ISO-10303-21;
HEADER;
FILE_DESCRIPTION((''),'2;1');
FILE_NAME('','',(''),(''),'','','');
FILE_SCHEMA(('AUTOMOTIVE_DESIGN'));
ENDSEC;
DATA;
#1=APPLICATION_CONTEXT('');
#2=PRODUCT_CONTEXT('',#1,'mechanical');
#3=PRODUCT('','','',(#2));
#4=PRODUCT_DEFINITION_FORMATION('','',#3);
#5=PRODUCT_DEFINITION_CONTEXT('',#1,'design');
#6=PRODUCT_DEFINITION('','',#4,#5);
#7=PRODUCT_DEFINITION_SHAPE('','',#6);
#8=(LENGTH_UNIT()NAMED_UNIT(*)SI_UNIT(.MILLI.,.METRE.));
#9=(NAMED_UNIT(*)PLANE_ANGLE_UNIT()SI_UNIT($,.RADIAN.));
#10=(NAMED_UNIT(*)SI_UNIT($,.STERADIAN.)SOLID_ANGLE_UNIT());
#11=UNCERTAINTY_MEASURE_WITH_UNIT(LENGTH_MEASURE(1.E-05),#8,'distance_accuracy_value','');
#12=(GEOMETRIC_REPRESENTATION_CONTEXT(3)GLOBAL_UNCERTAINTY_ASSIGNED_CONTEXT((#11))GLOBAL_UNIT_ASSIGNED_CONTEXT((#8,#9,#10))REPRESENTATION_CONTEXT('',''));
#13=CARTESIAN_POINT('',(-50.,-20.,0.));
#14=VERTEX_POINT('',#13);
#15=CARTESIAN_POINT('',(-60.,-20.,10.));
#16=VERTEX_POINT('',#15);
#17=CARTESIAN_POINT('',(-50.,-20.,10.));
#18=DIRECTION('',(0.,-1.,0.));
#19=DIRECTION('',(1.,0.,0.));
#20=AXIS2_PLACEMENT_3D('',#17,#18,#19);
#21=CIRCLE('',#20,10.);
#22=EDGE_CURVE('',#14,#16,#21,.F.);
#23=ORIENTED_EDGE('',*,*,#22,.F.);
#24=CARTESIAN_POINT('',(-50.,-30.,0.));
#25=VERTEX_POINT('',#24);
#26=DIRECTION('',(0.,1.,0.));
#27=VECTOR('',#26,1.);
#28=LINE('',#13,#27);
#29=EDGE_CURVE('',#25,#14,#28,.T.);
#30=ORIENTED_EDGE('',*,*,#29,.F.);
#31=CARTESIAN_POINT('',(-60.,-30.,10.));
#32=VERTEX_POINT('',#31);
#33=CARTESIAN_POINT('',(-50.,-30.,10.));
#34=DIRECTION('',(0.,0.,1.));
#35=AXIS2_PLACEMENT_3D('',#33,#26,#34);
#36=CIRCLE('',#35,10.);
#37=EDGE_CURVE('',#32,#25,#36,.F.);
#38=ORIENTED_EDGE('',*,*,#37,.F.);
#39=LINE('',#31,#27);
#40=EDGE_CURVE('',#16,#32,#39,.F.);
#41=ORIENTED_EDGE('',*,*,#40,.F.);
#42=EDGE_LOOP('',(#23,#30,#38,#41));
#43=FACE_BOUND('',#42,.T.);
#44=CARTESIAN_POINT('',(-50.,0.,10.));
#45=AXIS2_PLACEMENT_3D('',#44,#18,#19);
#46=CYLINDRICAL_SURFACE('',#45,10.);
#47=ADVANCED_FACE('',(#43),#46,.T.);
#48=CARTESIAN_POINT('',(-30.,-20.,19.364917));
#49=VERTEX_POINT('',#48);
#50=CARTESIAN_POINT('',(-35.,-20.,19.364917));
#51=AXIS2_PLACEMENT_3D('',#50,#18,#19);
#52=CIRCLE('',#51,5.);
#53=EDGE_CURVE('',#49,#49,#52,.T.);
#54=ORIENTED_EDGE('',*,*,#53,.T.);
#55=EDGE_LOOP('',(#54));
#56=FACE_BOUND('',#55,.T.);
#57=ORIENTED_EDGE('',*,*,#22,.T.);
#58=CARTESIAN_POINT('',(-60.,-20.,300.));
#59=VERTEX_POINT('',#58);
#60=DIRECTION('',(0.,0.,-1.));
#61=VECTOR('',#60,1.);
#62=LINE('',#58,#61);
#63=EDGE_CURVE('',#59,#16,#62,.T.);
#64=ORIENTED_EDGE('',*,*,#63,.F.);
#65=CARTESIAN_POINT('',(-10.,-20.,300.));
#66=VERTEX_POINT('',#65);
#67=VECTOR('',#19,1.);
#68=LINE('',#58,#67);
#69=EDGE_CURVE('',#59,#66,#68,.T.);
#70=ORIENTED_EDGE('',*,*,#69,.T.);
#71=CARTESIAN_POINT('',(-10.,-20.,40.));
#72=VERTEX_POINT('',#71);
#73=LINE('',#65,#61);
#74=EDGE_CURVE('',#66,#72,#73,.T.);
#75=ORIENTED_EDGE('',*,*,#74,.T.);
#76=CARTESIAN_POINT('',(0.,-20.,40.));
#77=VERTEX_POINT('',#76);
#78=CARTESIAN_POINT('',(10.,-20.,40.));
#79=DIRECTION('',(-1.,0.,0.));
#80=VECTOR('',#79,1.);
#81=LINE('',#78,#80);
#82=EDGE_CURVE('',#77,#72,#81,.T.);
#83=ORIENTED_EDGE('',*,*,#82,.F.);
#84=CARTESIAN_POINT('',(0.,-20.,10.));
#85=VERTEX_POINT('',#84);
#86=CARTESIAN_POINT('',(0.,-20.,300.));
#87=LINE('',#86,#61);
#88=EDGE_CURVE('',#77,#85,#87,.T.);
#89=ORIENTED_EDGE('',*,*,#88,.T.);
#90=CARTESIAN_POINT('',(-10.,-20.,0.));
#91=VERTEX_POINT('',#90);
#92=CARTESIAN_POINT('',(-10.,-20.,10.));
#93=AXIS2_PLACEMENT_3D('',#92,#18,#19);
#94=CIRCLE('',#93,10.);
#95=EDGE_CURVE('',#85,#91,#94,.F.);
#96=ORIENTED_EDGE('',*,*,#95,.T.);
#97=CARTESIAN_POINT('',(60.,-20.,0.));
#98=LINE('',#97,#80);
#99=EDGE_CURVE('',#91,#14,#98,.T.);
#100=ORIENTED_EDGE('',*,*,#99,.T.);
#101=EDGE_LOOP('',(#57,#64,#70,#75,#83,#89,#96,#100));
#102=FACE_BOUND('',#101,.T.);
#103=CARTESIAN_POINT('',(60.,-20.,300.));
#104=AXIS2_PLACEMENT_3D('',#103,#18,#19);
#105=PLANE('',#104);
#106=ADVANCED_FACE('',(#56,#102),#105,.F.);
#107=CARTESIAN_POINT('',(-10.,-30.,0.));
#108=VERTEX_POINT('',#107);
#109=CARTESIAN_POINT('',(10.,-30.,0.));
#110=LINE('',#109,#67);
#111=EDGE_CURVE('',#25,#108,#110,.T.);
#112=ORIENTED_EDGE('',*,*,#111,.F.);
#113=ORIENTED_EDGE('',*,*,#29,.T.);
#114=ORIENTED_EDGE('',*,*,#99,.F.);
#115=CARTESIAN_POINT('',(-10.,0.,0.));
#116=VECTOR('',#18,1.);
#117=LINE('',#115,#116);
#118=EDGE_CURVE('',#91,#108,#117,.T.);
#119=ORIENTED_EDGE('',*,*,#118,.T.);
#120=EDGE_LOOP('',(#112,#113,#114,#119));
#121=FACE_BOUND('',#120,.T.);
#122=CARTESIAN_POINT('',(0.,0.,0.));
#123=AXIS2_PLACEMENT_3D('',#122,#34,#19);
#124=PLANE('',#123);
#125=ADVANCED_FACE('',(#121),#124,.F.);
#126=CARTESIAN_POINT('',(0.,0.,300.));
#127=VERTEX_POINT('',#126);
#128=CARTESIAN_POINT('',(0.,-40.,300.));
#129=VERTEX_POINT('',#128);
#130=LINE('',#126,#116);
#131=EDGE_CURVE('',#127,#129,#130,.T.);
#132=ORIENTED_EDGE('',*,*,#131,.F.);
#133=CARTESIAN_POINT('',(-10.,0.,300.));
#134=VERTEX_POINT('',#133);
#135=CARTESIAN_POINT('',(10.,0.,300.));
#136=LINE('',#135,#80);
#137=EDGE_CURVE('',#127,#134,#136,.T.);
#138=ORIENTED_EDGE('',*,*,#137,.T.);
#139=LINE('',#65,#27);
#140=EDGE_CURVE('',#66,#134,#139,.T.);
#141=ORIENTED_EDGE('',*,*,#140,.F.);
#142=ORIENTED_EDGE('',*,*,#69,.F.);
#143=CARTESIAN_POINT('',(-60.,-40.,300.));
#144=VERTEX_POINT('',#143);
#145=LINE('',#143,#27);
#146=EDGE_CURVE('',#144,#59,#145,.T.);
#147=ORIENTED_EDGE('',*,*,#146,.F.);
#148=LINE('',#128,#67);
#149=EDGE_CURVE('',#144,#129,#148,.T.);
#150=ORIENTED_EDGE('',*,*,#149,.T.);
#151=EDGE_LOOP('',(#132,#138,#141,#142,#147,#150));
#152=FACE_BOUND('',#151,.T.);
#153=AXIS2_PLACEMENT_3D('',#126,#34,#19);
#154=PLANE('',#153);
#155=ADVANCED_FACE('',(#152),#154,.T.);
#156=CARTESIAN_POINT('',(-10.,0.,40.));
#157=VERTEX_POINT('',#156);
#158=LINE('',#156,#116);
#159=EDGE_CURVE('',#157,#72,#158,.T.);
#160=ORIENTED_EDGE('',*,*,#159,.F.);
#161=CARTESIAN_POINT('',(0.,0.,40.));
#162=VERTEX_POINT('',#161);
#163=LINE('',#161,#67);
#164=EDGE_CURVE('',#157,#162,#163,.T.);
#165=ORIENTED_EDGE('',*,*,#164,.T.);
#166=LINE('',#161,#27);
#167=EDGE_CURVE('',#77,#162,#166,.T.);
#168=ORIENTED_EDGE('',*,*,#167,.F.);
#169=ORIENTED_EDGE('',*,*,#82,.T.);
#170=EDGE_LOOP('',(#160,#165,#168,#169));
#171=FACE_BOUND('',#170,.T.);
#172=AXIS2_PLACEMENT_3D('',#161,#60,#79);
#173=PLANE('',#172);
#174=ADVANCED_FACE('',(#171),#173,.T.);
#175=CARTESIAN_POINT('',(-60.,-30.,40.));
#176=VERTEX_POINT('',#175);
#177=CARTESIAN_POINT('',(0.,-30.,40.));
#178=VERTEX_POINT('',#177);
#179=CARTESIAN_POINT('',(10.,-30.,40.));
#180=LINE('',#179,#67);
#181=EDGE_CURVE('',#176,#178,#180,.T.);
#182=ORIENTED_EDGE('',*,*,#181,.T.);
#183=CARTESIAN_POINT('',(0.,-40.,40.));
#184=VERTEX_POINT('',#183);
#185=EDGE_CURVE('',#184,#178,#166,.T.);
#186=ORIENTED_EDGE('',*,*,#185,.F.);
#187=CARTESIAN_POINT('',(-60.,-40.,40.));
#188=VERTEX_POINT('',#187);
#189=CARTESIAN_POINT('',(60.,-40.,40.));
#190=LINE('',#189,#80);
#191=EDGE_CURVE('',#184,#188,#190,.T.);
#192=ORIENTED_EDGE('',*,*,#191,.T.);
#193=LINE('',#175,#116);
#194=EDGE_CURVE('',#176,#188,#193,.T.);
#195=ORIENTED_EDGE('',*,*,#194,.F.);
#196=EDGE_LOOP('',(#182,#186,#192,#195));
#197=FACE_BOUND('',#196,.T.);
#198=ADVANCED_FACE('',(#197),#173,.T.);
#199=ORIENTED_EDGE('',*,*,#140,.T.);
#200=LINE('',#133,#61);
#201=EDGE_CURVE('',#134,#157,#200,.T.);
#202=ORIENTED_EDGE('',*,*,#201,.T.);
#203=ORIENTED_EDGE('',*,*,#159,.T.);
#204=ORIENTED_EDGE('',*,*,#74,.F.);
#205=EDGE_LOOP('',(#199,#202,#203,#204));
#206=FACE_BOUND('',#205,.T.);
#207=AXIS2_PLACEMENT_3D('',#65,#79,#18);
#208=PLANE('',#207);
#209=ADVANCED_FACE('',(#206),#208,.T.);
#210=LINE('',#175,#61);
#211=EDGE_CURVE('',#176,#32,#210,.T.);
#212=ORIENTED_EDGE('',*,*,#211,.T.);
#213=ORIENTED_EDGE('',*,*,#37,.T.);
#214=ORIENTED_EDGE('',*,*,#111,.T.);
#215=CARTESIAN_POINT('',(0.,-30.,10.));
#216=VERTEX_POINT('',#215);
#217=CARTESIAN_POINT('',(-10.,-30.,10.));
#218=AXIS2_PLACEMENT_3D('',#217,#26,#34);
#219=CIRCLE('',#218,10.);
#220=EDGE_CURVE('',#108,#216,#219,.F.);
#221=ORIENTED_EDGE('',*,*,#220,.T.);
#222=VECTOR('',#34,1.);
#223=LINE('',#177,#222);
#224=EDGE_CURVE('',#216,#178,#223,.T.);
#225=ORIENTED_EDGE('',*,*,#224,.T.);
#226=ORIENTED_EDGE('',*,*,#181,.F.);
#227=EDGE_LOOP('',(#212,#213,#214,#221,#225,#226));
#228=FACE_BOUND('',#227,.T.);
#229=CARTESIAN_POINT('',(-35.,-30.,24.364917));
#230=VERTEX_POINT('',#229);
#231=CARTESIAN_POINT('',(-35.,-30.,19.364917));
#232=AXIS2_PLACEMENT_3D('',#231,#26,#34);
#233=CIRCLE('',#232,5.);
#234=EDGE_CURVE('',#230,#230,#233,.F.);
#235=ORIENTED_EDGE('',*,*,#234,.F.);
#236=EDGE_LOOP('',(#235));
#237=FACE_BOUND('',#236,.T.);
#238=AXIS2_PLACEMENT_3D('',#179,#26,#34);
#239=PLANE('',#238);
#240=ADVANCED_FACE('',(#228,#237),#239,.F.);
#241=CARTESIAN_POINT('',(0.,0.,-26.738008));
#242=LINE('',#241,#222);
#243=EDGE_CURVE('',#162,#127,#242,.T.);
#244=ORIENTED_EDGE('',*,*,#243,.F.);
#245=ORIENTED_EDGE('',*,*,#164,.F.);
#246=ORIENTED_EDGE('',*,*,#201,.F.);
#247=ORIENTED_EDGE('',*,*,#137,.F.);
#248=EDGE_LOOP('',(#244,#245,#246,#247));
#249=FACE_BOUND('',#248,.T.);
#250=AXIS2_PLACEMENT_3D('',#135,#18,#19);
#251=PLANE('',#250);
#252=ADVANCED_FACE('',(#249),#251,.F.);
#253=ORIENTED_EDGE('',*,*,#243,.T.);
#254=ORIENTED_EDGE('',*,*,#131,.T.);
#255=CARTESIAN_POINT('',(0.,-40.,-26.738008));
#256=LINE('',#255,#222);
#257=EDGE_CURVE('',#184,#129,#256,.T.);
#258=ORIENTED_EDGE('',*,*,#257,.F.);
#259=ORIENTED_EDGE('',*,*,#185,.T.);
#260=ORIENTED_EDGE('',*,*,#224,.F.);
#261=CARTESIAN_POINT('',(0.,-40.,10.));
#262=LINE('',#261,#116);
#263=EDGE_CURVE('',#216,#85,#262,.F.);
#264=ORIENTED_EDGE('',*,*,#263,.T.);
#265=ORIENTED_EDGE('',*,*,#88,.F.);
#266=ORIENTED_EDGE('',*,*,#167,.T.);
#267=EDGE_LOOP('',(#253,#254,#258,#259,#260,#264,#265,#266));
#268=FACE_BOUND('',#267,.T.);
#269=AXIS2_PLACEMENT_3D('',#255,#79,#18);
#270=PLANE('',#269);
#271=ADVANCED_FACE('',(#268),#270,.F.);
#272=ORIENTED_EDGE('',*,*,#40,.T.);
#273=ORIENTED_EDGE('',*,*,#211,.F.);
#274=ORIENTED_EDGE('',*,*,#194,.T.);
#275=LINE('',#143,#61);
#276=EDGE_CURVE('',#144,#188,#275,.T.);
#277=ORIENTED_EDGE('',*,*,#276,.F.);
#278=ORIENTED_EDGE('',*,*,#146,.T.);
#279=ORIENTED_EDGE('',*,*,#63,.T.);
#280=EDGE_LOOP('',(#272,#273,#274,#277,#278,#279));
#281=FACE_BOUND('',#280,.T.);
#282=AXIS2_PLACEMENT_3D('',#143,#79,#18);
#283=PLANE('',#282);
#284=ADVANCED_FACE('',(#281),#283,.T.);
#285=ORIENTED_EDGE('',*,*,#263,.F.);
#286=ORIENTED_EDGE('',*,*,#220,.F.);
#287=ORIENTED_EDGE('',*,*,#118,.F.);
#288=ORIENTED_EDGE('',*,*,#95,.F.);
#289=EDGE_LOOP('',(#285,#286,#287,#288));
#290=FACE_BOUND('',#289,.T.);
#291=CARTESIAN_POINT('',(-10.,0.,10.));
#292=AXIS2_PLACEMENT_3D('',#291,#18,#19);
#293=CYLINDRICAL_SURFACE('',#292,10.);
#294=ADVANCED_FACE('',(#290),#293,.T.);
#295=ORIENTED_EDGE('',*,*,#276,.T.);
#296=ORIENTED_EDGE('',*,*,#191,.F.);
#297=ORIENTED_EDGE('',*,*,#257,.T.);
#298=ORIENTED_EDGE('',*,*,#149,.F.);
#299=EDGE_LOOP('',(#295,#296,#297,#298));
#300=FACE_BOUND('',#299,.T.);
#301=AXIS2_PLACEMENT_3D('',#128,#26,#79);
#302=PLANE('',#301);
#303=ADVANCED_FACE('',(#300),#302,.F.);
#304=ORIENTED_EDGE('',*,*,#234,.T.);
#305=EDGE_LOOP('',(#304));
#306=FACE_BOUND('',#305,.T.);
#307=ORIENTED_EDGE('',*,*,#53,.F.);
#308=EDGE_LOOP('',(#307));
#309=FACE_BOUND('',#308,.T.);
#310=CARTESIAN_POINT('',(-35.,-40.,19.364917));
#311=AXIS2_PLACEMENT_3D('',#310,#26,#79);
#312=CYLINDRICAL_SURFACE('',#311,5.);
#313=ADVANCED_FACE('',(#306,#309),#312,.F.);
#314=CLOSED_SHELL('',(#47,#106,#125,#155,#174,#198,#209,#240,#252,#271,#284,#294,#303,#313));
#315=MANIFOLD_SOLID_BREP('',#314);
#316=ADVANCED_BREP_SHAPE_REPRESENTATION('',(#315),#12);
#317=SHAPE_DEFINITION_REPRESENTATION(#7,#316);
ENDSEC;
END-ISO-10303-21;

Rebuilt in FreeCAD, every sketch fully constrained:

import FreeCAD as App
import Part
import Sketcher
from FreeCAD import Vector
Q = App.Units.Quantity


def edges_at(feature, points):
    """Names of the edges that pass closest to the given points."""
    edges = feature.Shape.Edges
    near = lambda p: min(range(len(edges)), key=lambda i: edges[i].distToShape(Part.Vertex(*p))[0])
    return sorted({f"Edge{near(p) + 1}" for p in points})


def add_polygon(sketch, points):
    """Adds a closed chain of lines whose ends are joined by coincident constraints."""
    first, n = sketch.GeometryCount, len(points)
    for a, b in zip(points, points[1:] + points[:1]):
        sketch.addGeometry(Part.LineSegment(App.Vector(*a, 0), App.Vector(*b, 0)), False)
    for i in range(n):
        sketch.addConstraint(Sketcher.Constraint("Coincident", first + i, 2, first + (i + 1) % n, 1))

doc = App.newDocument("Part")
params = doc.addObject("Spreadsheet::Sheet", "Params")
for row, (alias, value) in enumerate([
    ("sketch1_width", "60 mm"),
    ("sketch1_width2", "50 mm"),
    ("sketch1_height", "40 mm"),
    ("pad1_length", "300 mm"),
    ("sketch2_width", "10 mm"),
    ("sketch2_width2", "60 mm"),
    ("sketch2_height", "20 mm"),
    ("pocket1_length", "40 mm"),
    ("sketch3_diameter", "10 mm"),
    ("pocket2_length", "615.188389 mm"),
    ("fillet_radius", "10 mm"),
], start=1):
    params.set(f"A{row}", alias)
    params.set(f"B{row}", "=" + value)
    params.setAlias(f"B{row}", alias)

body = doc.addObject("PartDesign::Body", "Body")

sketch1 = body.newObject("Sketcher::SketchObject", "Sketch")
sketch1.AttachmentSupport = (doc.getObject("XY_Plane"), [""])
sketch1.MapMode = "FlatFace"
add_polygon(sketch1, [(0, 0), (0, -40), (60, -40), (60, -20), (10, -20), (10, 0)])
sketch1.addConstraint(Sketcher.Constraint("Vertical", 0))
sketch1.addConstraint(Sketcher.Constraint("Horizontal", 1))
sketch1.addConstraint(Sketcher.Constraint("Vertical", 2))
sketch1.addConstraint(Sketcher.Constraint("Horizontal", 3))
sketch1.addConstraint(Sketcher.Constraint("Vertical", 4))
sketch1.addConstraint(Sketcher.Constraint("Horizontal", 5))
sketch1.addConstraint(Sketcher.Constraint("Coincident", 5, 2, -1, 1))
sketch1.addConstraint(Sketcher.Constraint("Equal", 2, 4))
sketch1.addConstraint(Sketcher.Constraint("DistanceX", 1, 1, 1, 2, Q("60 mm")))
sketch1.addConstraint(Sketcher.Constraint("DistanceX", 3, 2, 3, 1, Q("50 mm")))
sketch1.addConstraint(Sketcher.Constraint("DistanceY", 0, 2, 0, 1, Q("40 mm")))
sketch1.setExpression("Constraints[14]", "Params.sketch1_width")
sketch1.setExpression("Constraints[15]", "Params.sketch1_width2")
sketch1.setExpression("Constraints[16]", "Params.sketch1_height")
pad1 = body.newObject("PartDesign::Pad", "Pad")
pad1.Profile = sketch1
pad1.setExpression("Length", "Params.pad1_length")

sketch2 = body.newObject("Sketcher::SketchObject", "Sketch001")
sketch2.AttachmentSupport = (doc.getObject("XY_Plane"), [""])
sketch2.MapMode = "FlatFace"
add_polygon(sketch2, [(10, 0), (10, -20), (0, -20), (0, 0)])
add_polygon(sketch2, [(0, -30), (60, -30), (60, -40), (0, -40)])
sketch2.addConstraint(Sketcher.Constraint("Vertical", 0))
sketch2.addConstraint(Sketcher.Constraint("Horizontal", 1))
sketch2.addConstraint(Sketcher.Constraint("Vertical", 2))
sketch2.addConstraint(Sketcher.Constraint("Horizontal", 3))
sketch2.addConstraint(Sketcher.Constraint("Horizontal", 4))
sketch2.addConstraint(Sketcher.Constraint("Vertical", 5))
sketch2.addConstraint(Sketcher.Constraint("Horizontal", 6))
sketch2.addConstraint(Sketcher.Constraint("Vertical", 7))
sketch2.addConstraint(Sketcher.Constraint("Coincident", 2, 2, -1, 1))
sketch2.addConstraint(Sketcher.Constraint("PointOnObject", 6, 2, -2))
sketch2.addConstraint(Sketcher.Constraint("Equal", 3, 5))
sketch2.addConstraint(Sketcher.Constraint("DistanceX", 1, 2, 1, 1, Q("10 mm")))
sketch2.addConstraint(Sketcher.Constraint("DistanceX", 4, 1, 4, 2, Q("60 mm")))
sketch2.addConstraint(Sketcher.Constraint("DistanceY", 0, 2, 0, 1, Q("20 mm")))
sketch2.addConstraint(Sketcher.Constraint("DistanceY", 4, 2, -1, 1, Q("30 mm")))
sketch2.setExpression("Constraints[19]", "Params.sketch2_width")
sketch2.setExpression("Constraints[20]", "Params.sketch2_width2")
sketch2.setExpression("Constraints[21]", "Params.sketch2_height")
pocket1 = body.newObject("PartDesign::Pocket", "Pocket")
pocket1.Profile = sketch2
pocket1.setExpression("Length", "Params.pocket1_length")
pocket1.Reversed = True

sketch3 = body.newObject("Sketcher::SketchObject", "Sketch002")
sketch3.AttachmentSupport = (doc.getObject("XZ_Plane"), [""])
sketch3.MapMode = "FlatFace"
sketch3.AttachmentOffset = App.Placement(Vector(0, 0, 20), App.Rotation())
sketch3.addGeometry(Part.Circle(Vector(35, 19, 0), Vector(0, 0, 1), 5), False)
sketch3.addConstraint(Sketcher.Constraint("Diameter", 0, Q("10 mm")))
sketch3.addConstraint(Sketcher.Constraint("DistanceX", -1, 1, 0, 3, Q("35 mm")))
sketch3.addConstraint(Sketcher.Constraint("DistanceY", -1, 1, 0, 3, Q("19.364917 mm")))
sketch3.setExpression("Constraints[0]", "Params.sketch3_diameter")
pocket2 = body.newObject("PartDesign::Pocket", "Pocket001")
pocket2.Profile = sketch3
pocket2.setExpression("Length", "Params.pocket2_length")
pocket2.Midplane = True
doc.recompute()

mirrored = body.newObject("PartDesign::Mirrored", "Mirrored")
mirrored.Originals = [pad1, pocket1, pocket2]
mirrored.MirrorPlane = (doc.getObject("YZ_Plane"), [""])
body.Tip = mirrored

sketch4 = body.newObject("Sketcher::SketchObject", "Sketch003")
sketch4.AttachmentSupport = (doc.getObject("XZ_Plane"), [""])
sketch4.MapMode = "FlatFace"
add_polygon(sketch4, [(0, 314.936963), (157.439828, 317.852515), (163.764973, -23.705323), (0, -26.738008)])
sketch4.addConstraint(Sketcher.Constraint("Vertical", 3))
sketch4.addConstraint(Sketcher.Constraint("PointOnObject", 2, 2, -2))
sketch4.addConstraint(Sketcher.Constraint("Perpendicular", 0, 1))
sketch4.addConstraint(Sketcher.Constraint("Perpendicular", 1, 2))
sketch4.addConstraint(Sketcher.Constraint("Distance", 1, Q("341.616399 mm")))
sketch4.addConstraint(Sketcher.Constraint("DistanceY", 3, 1, 3, 2, Q("341.674971 mm")))
sketch4.addConstraint(Sketcher.Constraint("Distance", 0, Q("157.466822 mm")))
sketch4.addConstraint(Sketcher.Constraint("DistanceY", -1, 1, 0, 2, Q("317.852515 mm")))
pocket3 = body.newObject("PartDesign::Pocket", "Pocket002")
pocket3.Profile = sketch4
pocket3.Type = "ThroughAll"
pocket3.Reversed = True
doc.recompute()

fillet = body.newObject("PartDesign::Fillet", "Fillet")
fillet.Base = (pocket3, edges_at(pocket3, [(0, -25, 0), (-60, -25, 0)]))
fillet.setExpression("Radius", "Params.fillet_radius")

doc.recompute()
